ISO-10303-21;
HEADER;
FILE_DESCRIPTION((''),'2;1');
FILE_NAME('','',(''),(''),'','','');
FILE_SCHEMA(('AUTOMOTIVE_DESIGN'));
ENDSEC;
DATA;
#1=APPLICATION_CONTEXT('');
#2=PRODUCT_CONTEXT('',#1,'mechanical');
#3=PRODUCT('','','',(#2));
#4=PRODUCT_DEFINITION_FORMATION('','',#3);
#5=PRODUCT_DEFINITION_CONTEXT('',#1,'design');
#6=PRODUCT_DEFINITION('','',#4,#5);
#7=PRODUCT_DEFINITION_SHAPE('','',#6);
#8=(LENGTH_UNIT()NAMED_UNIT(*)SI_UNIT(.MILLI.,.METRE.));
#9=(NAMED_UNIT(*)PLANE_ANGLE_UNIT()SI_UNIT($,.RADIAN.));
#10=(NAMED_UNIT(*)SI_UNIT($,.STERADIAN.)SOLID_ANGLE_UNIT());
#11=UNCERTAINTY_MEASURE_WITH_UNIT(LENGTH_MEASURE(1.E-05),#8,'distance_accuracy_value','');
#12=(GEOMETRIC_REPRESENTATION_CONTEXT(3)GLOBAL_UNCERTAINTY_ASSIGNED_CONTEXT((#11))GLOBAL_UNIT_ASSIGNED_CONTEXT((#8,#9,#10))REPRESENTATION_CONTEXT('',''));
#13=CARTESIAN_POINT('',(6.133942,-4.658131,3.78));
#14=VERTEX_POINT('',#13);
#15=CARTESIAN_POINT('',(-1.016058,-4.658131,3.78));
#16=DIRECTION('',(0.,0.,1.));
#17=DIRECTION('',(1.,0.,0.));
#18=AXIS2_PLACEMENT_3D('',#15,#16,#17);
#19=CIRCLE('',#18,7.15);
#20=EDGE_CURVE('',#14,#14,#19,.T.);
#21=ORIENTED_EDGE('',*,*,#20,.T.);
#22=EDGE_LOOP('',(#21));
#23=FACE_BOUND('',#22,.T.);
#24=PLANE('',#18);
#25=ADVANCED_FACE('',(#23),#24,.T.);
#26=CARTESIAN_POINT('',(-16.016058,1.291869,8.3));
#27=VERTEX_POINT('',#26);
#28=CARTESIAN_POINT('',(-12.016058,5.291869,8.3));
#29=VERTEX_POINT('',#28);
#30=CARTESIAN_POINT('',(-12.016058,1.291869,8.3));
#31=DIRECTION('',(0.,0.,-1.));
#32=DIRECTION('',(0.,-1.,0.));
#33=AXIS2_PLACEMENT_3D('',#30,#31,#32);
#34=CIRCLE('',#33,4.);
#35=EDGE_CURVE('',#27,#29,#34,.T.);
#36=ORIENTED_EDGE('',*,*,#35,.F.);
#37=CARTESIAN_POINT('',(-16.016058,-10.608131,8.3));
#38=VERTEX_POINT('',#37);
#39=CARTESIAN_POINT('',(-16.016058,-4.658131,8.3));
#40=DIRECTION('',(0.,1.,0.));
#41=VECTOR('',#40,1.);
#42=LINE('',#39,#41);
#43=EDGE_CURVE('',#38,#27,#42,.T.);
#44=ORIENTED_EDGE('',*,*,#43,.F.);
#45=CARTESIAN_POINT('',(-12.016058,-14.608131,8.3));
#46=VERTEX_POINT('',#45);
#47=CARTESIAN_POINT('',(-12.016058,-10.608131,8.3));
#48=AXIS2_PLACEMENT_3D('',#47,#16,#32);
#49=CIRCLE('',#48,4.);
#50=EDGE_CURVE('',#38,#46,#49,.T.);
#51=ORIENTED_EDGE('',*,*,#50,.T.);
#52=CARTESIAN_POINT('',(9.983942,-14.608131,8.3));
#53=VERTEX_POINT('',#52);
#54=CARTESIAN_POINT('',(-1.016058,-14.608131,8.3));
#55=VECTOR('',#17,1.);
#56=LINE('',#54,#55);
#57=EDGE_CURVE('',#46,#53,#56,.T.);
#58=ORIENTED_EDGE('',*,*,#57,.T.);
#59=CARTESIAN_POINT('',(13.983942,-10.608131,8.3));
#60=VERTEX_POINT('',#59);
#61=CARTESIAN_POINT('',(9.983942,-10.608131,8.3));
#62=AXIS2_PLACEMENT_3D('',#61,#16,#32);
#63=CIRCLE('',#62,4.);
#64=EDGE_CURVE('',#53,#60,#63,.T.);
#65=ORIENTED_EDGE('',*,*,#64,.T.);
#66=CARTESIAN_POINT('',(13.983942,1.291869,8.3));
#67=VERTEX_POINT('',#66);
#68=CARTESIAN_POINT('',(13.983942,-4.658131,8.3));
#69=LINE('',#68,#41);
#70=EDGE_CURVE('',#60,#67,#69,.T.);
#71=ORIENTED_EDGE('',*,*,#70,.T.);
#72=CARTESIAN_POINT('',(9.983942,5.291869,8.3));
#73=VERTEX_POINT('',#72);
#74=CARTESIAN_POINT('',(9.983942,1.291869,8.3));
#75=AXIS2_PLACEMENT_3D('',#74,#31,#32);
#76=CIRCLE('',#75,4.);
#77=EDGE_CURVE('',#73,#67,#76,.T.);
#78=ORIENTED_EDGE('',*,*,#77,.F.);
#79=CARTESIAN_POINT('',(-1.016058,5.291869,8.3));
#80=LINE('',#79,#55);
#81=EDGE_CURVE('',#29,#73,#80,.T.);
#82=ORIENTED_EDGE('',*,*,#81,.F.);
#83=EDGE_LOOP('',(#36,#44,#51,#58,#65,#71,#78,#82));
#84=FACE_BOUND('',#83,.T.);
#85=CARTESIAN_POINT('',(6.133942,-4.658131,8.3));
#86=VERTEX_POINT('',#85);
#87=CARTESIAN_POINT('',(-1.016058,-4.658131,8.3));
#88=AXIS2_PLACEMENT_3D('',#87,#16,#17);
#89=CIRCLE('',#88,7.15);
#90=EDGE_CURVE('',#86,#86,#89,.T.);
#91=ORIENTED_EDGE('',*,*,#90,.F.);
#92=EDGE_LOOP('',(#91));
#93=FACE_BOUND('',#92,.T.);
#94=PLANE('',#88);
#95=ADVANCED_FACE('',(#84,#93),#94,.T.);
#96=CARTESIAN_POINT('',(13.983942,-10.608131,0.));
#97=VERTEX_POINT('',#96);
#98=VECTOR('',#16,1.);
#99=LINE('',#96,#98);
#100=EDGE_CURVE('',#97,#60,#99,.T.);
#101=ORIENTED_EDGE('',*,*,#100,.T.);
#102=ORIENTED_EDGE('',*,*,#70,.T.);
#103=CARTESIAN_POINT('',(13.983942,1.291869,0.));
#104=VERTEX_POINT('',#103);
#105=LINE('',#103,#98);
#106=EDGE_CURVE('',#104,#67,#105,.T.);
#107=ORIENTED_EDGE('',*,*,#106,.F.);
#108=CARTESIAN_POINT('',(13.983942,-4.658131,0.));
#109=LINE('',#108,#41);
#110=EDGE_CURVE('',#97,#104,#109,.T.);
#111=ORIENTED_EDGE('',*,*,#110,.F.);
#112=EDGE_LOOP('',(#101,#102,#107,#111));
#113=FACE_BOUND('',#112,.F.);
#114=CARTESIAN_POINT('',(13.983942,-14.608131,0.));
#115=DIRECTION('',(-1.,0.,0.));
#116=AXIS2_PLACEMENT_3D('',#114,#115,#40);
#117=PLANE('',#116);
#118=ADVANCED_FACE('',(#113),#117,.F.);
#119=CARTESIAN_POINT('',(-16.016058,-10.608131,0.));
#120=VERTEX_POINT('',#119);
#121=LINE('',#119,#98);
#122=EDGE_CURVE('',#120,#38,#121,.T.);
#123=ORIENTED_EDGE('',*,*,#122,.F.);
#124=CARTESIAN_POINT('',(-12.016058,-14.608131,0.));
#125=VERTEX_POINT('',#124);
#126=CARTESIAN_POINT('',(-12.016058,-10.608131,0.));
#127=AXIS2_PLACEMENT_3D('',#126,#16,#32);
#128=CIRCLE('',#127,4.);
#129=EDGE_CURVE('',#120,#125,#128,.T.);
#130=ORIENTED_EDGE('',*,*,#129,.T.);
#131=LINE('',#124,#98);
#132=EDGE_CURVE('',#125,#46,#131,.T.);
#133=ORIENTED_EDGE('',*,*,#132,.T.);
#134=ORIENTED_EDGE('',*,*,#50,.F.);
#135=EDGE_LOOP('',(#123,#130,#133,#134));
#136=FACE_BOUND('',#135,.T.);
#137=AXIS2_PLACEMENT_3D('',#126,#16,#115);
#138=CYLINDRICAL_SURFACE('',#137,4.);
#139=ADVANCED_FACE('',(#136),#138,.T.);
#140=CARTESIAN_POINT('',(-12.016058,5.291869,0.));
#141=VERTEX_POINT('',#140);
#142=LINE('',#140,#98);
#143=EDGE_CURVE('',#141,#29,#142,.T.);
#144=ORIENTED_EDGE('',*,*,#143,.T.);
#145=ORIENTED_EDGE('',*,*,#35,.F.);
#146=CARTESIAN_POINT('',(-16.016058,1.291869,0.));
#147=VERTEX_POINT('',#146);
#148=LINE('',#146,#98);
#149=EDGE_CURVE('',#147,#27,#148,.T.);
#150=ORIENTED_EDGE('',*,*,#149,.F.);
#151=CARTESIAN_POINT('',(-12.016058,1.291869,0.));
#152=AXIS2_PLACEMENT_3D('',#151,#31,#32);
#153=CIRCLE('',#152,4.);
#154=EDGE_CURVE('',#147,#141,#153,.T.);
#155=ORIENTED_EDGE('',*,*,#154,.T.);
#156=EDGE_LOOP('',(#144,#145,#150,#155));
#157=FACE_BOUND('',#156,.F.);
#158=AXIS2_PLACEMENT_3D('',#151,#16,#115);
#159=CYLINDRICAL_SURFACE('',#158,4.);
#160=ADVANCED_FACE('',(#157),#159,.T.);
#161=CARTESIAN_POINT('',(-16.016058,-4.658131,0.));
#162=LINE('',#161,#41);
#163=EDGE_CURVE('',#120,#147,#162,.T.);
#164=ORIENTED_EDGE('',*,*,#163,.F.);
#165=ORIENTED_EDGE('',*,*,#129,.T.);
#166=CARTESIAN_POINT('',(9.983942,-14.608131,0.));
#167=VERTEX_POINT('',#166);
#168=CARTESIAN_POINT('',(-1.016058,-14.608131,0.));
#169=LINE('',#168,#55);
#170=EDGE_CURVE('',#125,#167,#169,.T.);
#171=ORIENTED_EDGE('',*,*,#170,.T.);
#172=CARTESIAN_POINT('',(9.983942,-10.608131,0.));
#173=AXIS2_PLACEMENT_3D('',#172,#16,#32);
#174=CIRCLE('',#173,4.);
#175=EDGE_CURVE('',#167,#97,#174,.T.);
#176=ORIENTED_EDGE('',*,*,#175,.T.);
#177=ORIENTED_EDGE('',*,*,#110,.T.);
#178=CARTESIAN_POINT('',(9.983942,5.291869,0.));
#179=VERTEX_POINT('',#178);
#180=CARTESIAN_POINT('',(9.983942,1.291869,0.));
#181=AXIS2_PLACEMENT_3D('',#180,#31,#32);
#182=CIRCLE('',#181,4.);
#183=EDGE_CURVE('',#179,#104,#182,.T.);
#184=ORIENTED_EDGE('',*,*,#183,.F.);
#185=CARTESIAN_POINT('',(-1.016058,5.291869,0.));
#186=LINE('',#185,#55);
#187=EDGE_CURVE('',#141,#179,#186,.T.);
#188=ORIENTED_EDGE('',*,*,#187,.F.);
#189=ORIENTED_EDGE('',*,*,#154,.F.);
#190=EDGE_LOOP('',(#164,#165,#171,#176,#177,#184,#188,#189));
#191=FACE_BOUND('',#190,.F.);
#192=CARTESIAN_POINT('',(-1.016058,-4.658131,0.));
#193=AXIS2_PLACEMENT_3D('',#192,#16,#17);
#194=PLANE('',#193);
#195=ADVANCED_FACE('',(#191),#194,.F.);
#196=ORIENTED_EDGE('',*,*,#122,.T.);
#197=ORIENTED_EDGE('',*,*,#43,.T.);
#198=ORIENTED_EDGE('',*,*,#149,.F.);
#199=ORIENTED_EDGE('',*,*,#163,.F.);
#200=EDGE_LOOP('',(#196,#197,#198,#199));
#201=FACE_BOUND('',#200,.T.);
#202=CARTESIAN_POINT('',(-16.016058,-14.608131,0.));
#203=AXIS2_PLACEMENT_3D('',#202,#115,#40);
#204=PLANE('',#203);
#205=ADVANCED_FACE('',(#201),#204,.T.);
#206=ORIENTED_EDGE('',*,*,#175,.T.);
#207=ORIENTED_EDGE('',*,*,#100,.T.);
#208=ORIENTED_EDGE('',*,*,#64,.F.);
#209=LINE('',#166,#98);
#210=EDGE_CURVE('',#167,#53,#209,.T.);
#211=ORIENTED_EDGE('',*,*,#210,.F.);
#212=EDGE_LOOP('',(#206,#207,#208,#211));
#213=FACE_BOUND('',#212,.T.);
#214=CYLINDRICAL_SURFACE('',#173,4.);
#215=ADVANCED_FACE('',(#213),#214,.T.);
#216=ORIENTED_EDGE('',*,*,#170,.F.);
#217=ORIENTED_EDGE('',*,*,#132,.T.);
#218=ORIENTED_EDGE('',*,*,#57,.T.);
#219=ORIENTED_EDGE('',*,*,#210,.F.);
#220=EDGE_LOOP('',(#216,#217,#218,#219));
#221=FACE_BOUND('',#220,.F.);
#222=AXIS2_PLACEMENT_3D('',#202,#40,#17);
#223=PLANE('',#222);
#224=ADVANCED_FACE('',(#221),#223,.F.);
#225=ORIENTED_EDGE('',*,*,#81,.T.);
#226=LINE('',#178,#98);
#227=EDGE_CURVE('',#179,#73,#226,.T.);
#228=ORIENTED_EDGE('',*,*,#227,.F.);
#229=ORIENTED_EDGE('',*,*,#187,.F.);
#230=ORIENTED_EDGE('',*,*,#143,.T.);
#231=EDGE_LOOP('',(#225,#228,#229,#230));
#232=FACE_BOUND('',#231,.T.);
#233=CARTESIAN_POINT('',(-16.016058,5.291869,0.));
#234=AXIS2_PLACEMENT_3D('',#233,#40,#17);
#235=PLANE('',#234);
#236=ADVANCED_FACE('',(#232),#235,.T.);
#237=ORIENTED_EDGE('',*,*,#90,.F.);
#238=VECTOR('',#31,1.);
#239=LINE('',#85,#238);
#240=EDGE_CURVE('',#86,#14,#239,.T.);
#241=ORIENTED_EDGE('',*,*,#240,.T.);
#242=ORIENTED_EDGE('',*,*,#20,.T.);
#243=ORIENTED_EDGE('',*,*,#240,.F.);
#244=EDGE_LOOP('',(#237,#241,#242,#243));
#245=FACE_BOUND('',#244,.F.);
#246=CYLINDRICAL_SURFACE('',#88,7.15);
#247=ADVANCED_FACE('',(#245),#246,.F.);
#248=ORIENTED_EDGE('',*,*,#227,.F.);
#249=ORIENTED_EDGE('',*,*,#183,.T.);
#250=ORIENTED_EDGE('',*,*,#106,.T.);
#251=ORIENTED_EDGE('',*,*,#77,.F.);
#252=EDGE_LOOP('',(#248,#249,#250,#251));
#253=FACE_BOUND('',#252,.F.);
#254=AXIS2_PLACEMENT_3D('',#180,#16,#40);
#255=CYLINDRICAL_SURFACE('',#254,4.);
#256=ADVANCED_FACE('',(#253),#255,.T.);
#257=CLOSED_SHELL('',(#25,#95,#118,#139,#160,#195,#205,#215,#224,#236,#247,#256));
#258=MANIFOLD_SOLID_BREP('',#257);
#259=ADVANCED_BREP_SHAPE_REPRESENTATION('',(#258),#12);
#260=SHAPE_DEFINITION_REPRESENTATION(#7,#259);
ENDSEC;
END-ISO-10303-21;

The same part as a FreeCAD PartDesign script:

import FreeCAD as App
import Part
import Sketcher
from FreeCAD import Vector
Q = App.Units.Quantity


def edges_at(feature, points):
    """Names of the edges that pass closest to the given points."""
    edges = feature.Shape.Edges
    near = lambda p: min(range(len(edges)), key=lambda i: edges[i].distToShape(Part.Vertex(*p))[0])
    return sorted({f"Edge{near(p) + 1}" for p in points})


def add_polygon(sketch, points):
    """Adds a closed chain of lines whose ends are joined by coincident constraints."""
    first, n = sketch.GeometryCount, len(points)
    for a, b in zip(points, points[1:] + points[:1]):
        sketch.addGeometry(Part.LineSegment(App.Vector(*a, 0), App.Vector(*b, 0)), False)
    for i in range(n):
        sketch.addConstraint(Sketcher.Constraint("Coincident", first + i, 2, first + (i + 1) % n, 1))

doc = App.newDocument("Part")
params = doc.addObject("Spreadsheet::Sheet", "Params")
for row, (alias, value) in enumerate([
    ("sketch1_width", "30 mm"),
    ("sketch1_height", "19.9 mm"),
    ("pad1_length", "8.3 mm"),
    ("sketch2_diameter", "14.3 mm"),
    ("pocket1_length", "4.52 mm"),
    ("fillet_radius", "4 mm"),
], start=1):
    params.set(f"A{row}", alias)
    params.set(f"B{row}", "=" + value)
    params.setAlias(f"B{row}", alias)

body = doc.addObject("PartDesign::Body", "Body")

sketch1 = body.newObject("Sketcher::SketchObject", "Sketch")
sketch1.AttachmentSupport = (doc.getObject("XY_Plane"), [""])
sketch1.MapMode = "FlatFace"
add_polygon(sketch1, [(-16, 5), (-16, -15), (14, -15), (14, 5)])
sketch1.addConstraint(Sketcher.Constraint("Vertical", 0))
sketch1.addConstraint(Sketcher.Constraint("Horizontal", 1))
sketch1.addConstraint(Sketcher.Constraint("Vertical", 2))
sketch1.addConstraint(Sketcher.Constraint("Horizontal", 3))
sketch1.addConstraint(Sketcher.Constraint("DistanceX", 1, 1, 1, 2, Q("30 mm")))
sketch1.addConstraint(Sketcher.Constraint("DistanceY", 0, 2, 0, 1, Q("19.9 mm")))
sketch1.addConstraint(Sketcher.Constraint("DistanceX", 0, 2, -1, 1, Q("16.016058 mm")))
sketch1.addConstraint(Sketcher.Constraint("DistanceY", 0, 2, -1, 1, Q("14.608131 mm")))
sketch1.setExpression("Constraints[8]", "Params.sketch1_width")
sketch1.setExpression("Constraints[9]", "Params.sketch1_height")
pad1 = body.newObject("PartDesign::Pad", "Pad")
pad1.Profile = sketch1
pad1.setExpression("Length", "Params.pad1_length")

sketch2 = body.newObject("Sketcher::SketchObject", "Sketch001")
sketch2.AttachmentSupport = (doc.getObject("XY_Plane"), [""])
sketch2.MapMode = "FlatFace"
sketch2.AttachmentOffset = App.Placement(Vector(0, 0, 8.3), App.Rotation())
sketch2.addGeometry(Part.Circle(Vector(-1, -5, 0), Vector(0, 0, 1), 7), False)
sketch2.addConstraint(Sketcher.Constraint("Diameter", 0, Q("14.3 mm")))
sketch2.addConstraint(Sketcher.Constraint("DistanceY", 0, 3, -1, 1, Q("4.658131 mm")))
sketch2.addConstraint(Sketcher.Constraint("DistanceX", 0, 3, -1, 1, Q("1.016058 mm")))
sketch2.setExpression("Constraints[0]", "Params.sketch2_diameter")
pocket1 = body.newObject("PartDesign::Pocket", "Pocket")
pocket1.Profile = sketch2
pocket1.setExpression("Length", "Params.pocket1_length")
doc.recompute()

fillet = body.newObject("PartDesign::Fillet", "Fillet")
fillet.Base = (pocket1, edges_at(pocket1, [
    (13.984, -14.608, 4.15),
    (-16.016, -14.608, 4.15),
    (13.984, 5.292, 4.15),
    (-16.016, 5.292, 4.15),
]))
fillet.setExpression("Radius", "Params.fillet_radius")

doc.recompute()
